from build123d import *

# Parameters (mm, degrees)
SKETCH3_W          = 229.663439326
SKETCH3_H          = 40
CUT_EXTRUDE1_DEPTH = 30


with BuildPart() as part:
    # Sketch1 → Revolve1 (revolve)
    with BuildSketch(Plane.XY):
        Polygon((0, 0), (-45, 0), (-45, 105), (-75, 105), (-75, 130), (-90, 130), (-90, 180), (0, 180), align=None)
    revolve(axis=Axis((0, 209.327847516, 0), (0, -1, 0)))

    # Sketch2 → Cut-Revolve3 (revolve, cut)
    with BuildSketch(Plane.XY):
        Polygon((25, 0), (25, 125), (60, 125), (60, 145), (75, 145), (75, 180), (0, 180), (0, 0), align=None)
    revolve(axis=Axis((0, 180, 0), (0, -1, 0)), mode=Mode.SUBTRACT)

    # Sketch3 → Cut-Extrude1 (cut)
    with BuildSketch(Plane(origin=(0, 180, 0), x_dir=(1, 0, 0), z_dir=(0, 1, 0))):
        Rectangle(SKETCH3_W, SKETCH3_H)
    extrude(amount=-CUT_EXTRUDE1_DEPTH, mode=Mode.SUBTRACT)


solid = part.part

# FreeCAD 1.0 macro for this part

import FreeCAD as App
import Part
import Sketcher

V = App.Vector
Q = App.Units.Quantity


def add_polygon(sketch, points):
    """Adds a closed chain of lines whose ends are joined by coincident constraints."""
    first, n = sketch.GeometryCount, len(points)
    for a, b in zip(points, points[1:] + points[:1]):
        sketch.addGeometry(Part.LineSegment(App.Vector(*a, 0), App.Vector(*b, 0)), False)
    for i in range(n):
        sketch.addConstraint(Sketcher.Constraint("Coincident", first + i, 2, first + (i + 1) % n, 1))

doc = App.newDocument("Part")
body = doc.addObject("PartDesign::Body", "Body")

# Sketch on XY plane
sketch1 = body.newObject("Sketcher::SketchObject", "Sketch")
sketch1.AttachmentSupport = (doc.getObject("XY_Plane"), [""])
sketch1.MapMode = "FlatFace"
add_polygon(sketch1, [(-45, 0), (0, 0), (0, 180), (-90, 180), (-90, 130), (-75, 130), (-75, 105), (-45, 105)])  # lines 0-7
sketch1.addConstraint(Sketcher.Constraint("Horizontal", 0))
sketch1.addConstraint(Sketcher.Constraint("Vertical", 1))
sketch1.addConstraint(Sketcher.Constraint("Horizontal", 2))
sketch1.addConstraint(Sketcher.Constraint("Vertical", 3))
sketch1.addConstraint(Sketcher.Constraint("Horizontal", 4))
sketch1.addConstraint(Sketcher.Constraint("Vertical", 5))
sketch1.addConstraint(Sketcher.Constraint("Horizontal", 6))
sketch1.addConstraint(Sketcher.Constraint("Vertical", 7))
sketch1.addConstraint(Sketcher.Constraint("Coincident", 0, 2, -1, 1))
sketch1.addConstraint(Sketcher.Constraint("DistanceX", 0, 1, 0, 2, Q("45 mm")))
sketch1.addConstraint(Sketcher.Constraint("DistanceX", 2, 2, 2, 1, Q("90 mm")))
sketch1.addConstraint(Sketcher.Constraint("DistanceX", 4, 1, 4, 2, Q("15 mm")))
sketch1.addConstraint(Sketcher.Constraint("DistanceY", 1, 1, 1, 2, Q("180 mm")))
sketch1.addConstraint(Sketcher.Constraint("DistanceY", 3, 2, 3, 1, Q("50 mm")))
sketch1.addConstraint(Sketcher.Constraint("DistanceY", 5, 2, 5, 1, Q("25 mm")))
revolution = body.newObject("PartDesign::Revolution", "Revolution")
revolution.Profile = sketch1
revolution.ReferenceAxis = (sketch1, ["V_Axis"])
revolution.Angle = 360

# Sketch on XY plane
sketch2 = body.newObject("Sketcher::SketchObject", "Sketch001")
sketch2.AttachmentSupport = (doc.getObject("XY_Plane"), [""])
sketch2.MapMode = "FlatFace"
add_polygon(sketch2, [(25, 0), (25, 125), (60, 125), (60, 145), (75, 145), (75, 180), (0, 180), (0, 0)])  # lines 0-7
sketch2.addConstraint(Sketcher.Constraint("Vertical", 0))
sketch2.addConstraint(Sketcher.Constraint("Horizontal", 1))
sketch2.addConstraint(Sketcher.Constraint("Vertical", 2))
sketch2.addConstraint(Sketcher.Constraint("Horizontal", 3))
sketch2.addConstraint(Sketcher.Constraint("Vertical", 4))
sketch2.addConstraint(Sketcher.Constraint("Horizontal", 5))
sketch2.addConstraint(Sketcher.Constraint("Vertical", 6))
sketch2.addConstraint(Sketcher.Constraint("Horizontal", 7))
sketch2.addConstraint(Sketcher.Constraint("Coincident", 6, 2, -1, 1))
sketch2.addConstraint(Sketcher.Constraint("Equal", 1, 4))
sketch2.addConstraint(Sketcher.Constraint("DistanceX", 1, 1, 1, 2, Q("35 mm")))
sketch2.addConstraint(Sketcher.Constraint("DistanceX", 3, 1, 3, 2, Q("15 mm")))
sketch2.addConstraint(Sketcher.Constraint("DistanceX", 5, 2, 5, 1, Q("75 mm")))
sketch2.addConstraint(Sketcher.Constraint("DistanceY", 0, 1, 0, 2, Q("125 mm")))
sketch2.addConstraint(Sketcher.Constraint("DistanceY", 2, 1, 2, 2, Q("20 mm")))
groove = body.newObject("PartDesign::Groove", "Groove")
groove.Profile = sketch2
groove.ReferenceAxis = (sketch2, ["V_Axis"])
groove.Angle = 360

# Sketch on XZ plane
sketch3 = body.newObject("Sketcher::SketchObject", "Sketch002")
sketch3.AttachmentSupport = (doc.getObject("XZ_Plane"), [""])
sketch3.MapMode = "FlatFace"
sketch3.AttachmentOffset = App.Placement(V(0, 0, -180), App.Rotation())
add_polygon(sketch3, [(-115, -20), (-115, 20), (115, 20), (115, -20)])  # lines 0-3
sketch3.addConstraint(Sketcher.Constraint("Vertical", 0))
sketch3.addConstraint(Sketcher.Constraint("Horizontal", 1))
sketch3.addConstraint(Sketcher.Constraint("Vertical", 2))
sketch3.addConstraint(Sketcher.Constraint("Horizontal", 3))
sketch3.addConstraint(Sketcher.Constraint("Symmetric", 0, 2, 2, 2, -1, 1))
sketch3.addConstraint(Sketcher.Constraint("DistanceY", 0, 1, 0, 2, Q("40 mm")))
sketch3.addConstraint(Sketcher.Constraint("DistanceX", 1, 1, 1, 2, Q("229.663439 mm")))
pocket1 = body.newObject("PartDesign::Pocket", "Pocket")
pocket1.Profile = sketch3
pocket1.Length = 30
pocket1.Reversed = True

doc.recompute()
